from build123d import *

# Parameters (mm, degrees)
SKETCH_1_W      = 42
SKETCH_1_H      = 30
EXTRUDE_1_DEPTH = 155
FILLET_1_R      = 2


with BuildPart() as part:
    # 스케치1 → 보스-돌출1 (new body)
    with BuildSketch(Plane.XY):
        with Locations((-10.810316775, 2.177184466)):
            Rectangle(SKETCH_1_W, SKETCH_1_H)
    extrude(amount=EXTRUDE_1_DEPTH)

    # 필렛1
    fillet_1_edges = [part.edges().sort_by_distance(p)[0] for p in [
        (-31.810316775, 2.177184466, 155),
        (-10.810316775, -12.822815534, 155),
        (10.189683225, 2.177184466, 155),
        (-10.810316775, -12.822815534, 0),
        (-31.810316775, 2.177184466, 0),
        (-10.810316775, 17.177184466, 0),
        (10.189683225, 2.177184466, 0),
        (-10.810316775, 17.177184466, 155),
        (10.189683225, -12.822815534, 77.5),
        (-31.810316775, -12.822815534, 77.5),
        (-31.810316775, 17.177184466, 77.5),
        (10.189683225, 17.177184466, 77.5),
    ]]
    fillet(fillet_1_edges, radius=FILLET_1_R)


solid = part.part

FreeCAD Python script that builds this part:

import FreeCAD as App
import Part
import Sketcher
Q = App.Units.Quantity


def add_polygon(sketch, points):
    """Adds a closed chain of lines whose ends are joined by coincident constraints."""
    first, n = sketch.GeometryCount, len(points)
    for a, b in zip(points, points[1:] + points[:1]):
        sketch.addGeometry(Part.LineSegment(App.Vector(*a, 0), App.Vector(*b, 0)), False)
    for i in range(n):
        sketch.addConstraint(Sketcher.Constraint("Coincident", first + i, 2, first + (i + 1) % n, 1))

doc = App.newDocument("Part")
body = doc.addObject("PartDesign::Body", "Body")

sketch1 = doc.addObject("Sketcher::SketchObject", "Sketch")
body.addObject(sketch1)
sketch1.AttachmentSupport = (doc.XY_Plane, [""])
sketch1.MapMode = "FlatFace"
add_polygon(sketch1, [(-32, 17), (-32, -13), (10, -13), (10, 17)])
sketch1.addConstraint(Sketcher.Constraint("Vertical", 0))
sketch1.addConstraint(Sketcher.Constraint("Horizontal", 1))
sketch1.addConstraint(Sketcher.Constraint("Vertical", 2))
sketch1.addConstraint(Sketcher.Constraint("Horizontal", 3))
sketch1.addConstraint(Sketcher.Constraint("DistanceX", 1, 1, 1, 2, Q("42 mm")))
sketch1.addConstraint(Sketcher.Constraint("DistanceY", 0, 2, 0, 1, Q("30 mm")))
sketch1.addConstraint(Sketcher.Constraint("DistanceX", 0, 2, -1, 1, Q("31.810317 mm")))
sketch1.addConstraint(Sketcher.Constraint("DistanceY", 0, 2, -1, 1, Q("12.822816 mm")))
pad1 = doc.addObject("PartDesign::Pad", "Pad")
body.addObject(pad1)
pad1.Profile = sketch1
pad1.Length = 155
doc.recompute()

fillet = doc.addObject("PartDesign::Fillet", "Fillet")
body.addObject(fillet)
fillet.Base = (pad1, ["Edge1"])
fillet.UseAllEdges = True
fillet.Radius = 2

doc.recompute()
